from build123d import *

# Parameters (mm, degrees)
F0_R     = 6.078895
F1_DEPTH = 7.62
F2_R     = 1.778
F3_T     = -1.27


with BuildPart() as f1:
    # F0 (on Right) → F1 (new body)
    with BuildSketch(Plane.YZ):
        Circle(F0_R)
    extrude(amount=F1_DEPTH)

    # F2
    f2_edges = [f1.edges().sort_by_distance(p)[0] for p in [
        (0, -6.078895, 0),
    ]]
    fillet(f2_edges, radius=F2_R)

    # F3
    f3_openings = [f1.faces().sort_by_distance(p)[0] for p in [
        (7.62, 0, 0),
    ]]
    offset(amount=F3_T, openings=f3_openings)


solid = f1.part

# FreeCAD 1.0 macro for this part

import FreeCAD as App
import Part
import Sketcher

V = App.Vector
Q = App.Units.Quantity


def edges_at(feature, points):
    """Names of the edges that pass closest to the given points."""
    edges = feature.Shape.Edges
    near = lambda p: min(range(len(edges)), key=lambda i: edges[i].distToShape(Part.Vertex(*p))[0])
    return sorted({f"Edge{near(p) + 1}" for p in points})


def faces_at(feature, points):
    """Names of the faces that lie closest to the given points."""
    faces = feature.Shape.Faces
    near = lambda p: min(range(len(faces)), key=lambda i: faces[i].distToShape(Part.Vertex(*p))[0])
    return sorted({f"Face{near(p) + 1}" for p in points})

doc = App.newDocument("Part")
body = doc.addObject("PartDesign::Body", "Body")

# Sketch on YZ plane
sketch1 = body.newObject("Sketcher::SketchObject", "Sketch")
sketch1.AttachmentSupport = (doc.getObject("YZ_Plane"), [""])
sketch1.MapMode = "FlatFace"
sketch1.addGeometry(Part.Circle(V(0, 0, 0), V(0, 0, 1), 6), False)
sketch1.addConstraint([
    Sketcher.Constraint("Coincident", 0, 3, -1, 1),
    Sketcher.Constraint("Diameter", 0, 12.15779),
])
pad1 = body.newObject("PartDesign::Pad", "Pad")
pad1.Profile = sketch1
pad1.Length = Q("0.3 in")
doc.recompute()

fillet = body.newObject("PartDesign::Fillet", "Fillet")
fillet.Base = (pad1, edges_at(pad1, [(0, -6.079, 0)]))
fillet.Radius = Q("0.07 in")
doc.recompute()

thickness = body.newObject("PartDesign::Thickness", "Thickness")
thickness.Base = (fillet, faces_at(fillet, [(7.62, 0, 0)]))
thickness.Value = Q("0.05 in")
thickness.Reversed = True
thickness.Join = "Arc"

doc.recompute()
